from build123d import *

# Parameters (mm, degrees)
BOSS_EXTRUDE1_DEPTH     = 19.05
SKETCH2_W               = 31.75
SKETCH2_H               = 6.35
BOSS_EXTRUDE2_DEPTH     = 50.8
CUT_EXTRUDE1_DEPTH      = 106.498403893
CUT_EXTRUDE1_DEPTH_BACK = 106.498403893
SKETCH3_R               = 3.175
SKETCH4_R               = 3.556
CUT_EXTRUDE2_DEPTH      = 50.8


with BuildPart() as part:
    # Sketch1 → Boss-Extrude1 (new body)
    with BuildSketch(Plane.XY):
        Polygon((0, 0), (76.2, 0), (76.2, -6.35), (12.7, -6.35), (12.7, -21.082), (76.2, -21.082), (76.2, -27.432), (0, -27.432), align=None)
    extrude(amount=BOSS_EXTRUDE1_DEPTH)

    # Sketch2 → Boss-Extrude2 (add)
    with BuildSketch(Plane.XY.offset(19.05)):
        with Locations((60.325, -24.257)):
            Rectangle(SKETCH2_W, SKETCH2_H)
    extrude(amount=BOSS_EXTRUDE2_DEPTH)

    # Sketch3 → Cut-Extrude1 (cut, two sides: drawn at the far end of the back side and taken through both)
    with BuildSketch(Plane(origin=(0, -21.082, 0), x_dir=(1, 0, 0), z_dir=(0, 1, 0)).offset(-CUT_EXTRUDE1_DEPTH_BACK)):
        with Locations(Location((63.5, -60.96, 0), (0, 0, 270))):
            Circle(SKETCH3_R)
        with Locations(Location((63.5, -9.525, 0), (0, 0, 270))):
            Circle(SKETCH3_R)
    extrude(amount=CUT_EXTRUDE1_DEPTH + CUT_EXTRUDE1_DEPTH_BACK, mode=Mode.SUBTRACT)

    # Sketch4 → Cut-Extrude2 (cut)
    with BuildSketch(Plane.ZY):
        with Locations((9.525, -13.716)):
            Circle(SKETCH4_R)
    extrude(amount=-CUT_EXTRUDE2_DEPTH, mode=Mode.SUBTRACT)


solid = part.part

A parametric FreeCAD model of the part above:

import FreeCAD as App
import Part
import Sketcher

V = App.Vector
Q = App.Units.Quantity

doc = App.newDocument("Part")
body = doc.addObject("PartDesign::Body", "Body")

sketch1 = body.newObject("Sketcher::SketchObject", "Sketch")
sketch1.AttachmentSupport = (doc.getObject("XY_Plane"), [""])
sketch1.MapMode = "FlatFace"
sketch1.addGeometry([
    Part.LineSegment(V(76.2, 0, 0), V(0, 0, 0)),
    Part.LineSegment(V(0, 0, 0), V(0, -27.432, 0)),
    Part.LineSegment(V(0, -27.432, 0), V(76.2, -27.432, 0)),
    Part.LineSegment(V(76.2, -27.432, 0), V(76.2, -21.082, 0)),
    Part.LineSegment(V(76.2, -21.082, 0), V(12.7, -21.082, 0)),
    Part.LineSegment(V(12.7, -21.082, 0), V(12.7, -6.35, 0)),
    Part.LineSegment(V(12.7, -6.35, 0), V(76.2, -6.35, 0)),
    Part.LineSegment(V(76.2, -6.35, 0), V(76.2, 0, 0)),
], False)
sketch1.addConstraint([
    Sketcher.Constraint("Coincident", 0, 2, 1, 1),
    Sketcher.Constraint("Coincident", 1, 2, 2, 1),
    Sketcher.Constraint("Coincident", 2, 2, 3, 1),
    Sketcher.Constraint("Coincident", 3, 2, 4, 1),
    Sketcher.Constraint("Coincident", 4, 2, 5, 1),
    Sketcher.Constraint("Coincident", 5, 2, 6, 1),
    Sketcher.Constraint("Coincident", 6, 2, 7, 1),
    Sketcher.Constraint("Coincident", 7, 2, 0, 1),
    Sketcher.Constraint("Horizontal", 0),
    Sketcher.Constraint("Vertical", 1),
    Sketcher.Constraint("Horizontal", 2),
    Sketcher.Constraint("Vertical", 3),
    Sketcher.Constraint("Horizontal", 4),
    Sketcher.Constraint("Vertical", 5),
    Sketcher.Constraint("Horizontal", 6),
    Sketcher.Constraint("Vertical", 7),
    Sketcher.Constraint("Coincident", 0, 2, -1, 1),
    Sketcher.Constraint("Vertical", 3, 2, 6, 2),
    Sketcher.Constraint("Equal", 3, 7),
    Sketcher.Constraint("DistanceX", 0, 2, 0, 1, Q("3 in")),
    Sketcher.Constraint("DistanceX", 4, 2, 4, 1, Q("2.5 in")),
    Sketcher.Constraint("DistanceY", 1, 2, 1, 1, Q("1.08 in")),
    Sketcher.Constraint("DistanceY", 3, 1, 3, 2, Q("0.25 in")),
])
pad1 = body.newObject("PartDesign::Pad", "Pad")
pad1.Profile = sketch1
pad1.Length = Q("0.75 in")

sketch2 = body.newObject("Sketcher::SketchObject", "Sketch001")
sketch2.AttachmentSupport = (doc.getObject("XY_Plane"), [""])
sketch2.MapMode = "FlatFace"
sketch2.AttachmentOffset = App.Placement(V(0, 0, 0.75 * 25.4), App.Rotation())
sketch2.addGeometry([
    Part.LineSegment(V(44.45, -21.082, 0), V(44.45, -27.432, 0)),
    Part.LineSegment(V(44.45, -27.432, 0), V(76.2, -27.432, 0)),
    Part.LineSegment(V(76.2, -27.432, 0), V(76.2, -21.082, 0)),
    Part.LineSegment(V(76.2, -21.082, 0), V(44.45, -21.082, 0)),
], False)
sketch2.addConstraint([
    Sketcher.Constraint("Coincident", 0, 2, 1, 1),
    Sketcher.Constraint("Coincident", 1, 2, 2, 1),
    Sketcher.Constraint("Coincident", 2, 2, 3, 1),
    Sketcher.Constraint("Coincident", 3, 2, 0, 1),
    Sketcher.Constraint("Vertical", 0),
    Sketcher.Constraint("Horizontal", 1),
    Sketcher.Constraint("Vertical", 2),
    Sketcher.Constraint("Horizontal", 3),
    Sketcher.Constraint("DistanceX", -1, 1, 1, 2, Q("3 in")),
    Sketcher.Constraint("DistanceX", 1, 1, 1, 2, Q("1.25 in")),
    Sketcher.Constraint("DistanceY", 0, 2, 0, 1, Q("0.25 in")),
    Sketcher.Constraint("DistanceY", 0, 2, -1, 1, Q("1.08 in")),
])
pad2 = body.newObject("PartDesign::Pad", "Pad001")
pad2.Profile = sketch2
pad2.Length = Q("2 in")

sketch3 = body.newObject("Sketcher::SketchObject", "Sketch002")
sketch3.AttachmentSupport = (doc.getObject("XZ_Plane"), [""])
sketch3.MapMode = "FlatFace"
sketch3.AttachmentOffset = App.Placement(V(0, 0, 0.83 * 25.4), App.Rotation())
sketch3.addGeometry([
    Part.Circle(V(63.5, 60.96, 0), V(0, 0, 1), 3.175),
    Part.Circle(V(63.5, 9.525, 0), V(0, 0, 1), 3.175),
], False)
sketch3.addConstraint([
    Sketcher.Constraint("Equal", 0, 1),
    Sketcher.Constraint("Vertical", 0, 3, 1, 3),
    Sketcher.Constraint("Diameter", 0, Q("0.25 in")),
    Sketcher.Constraint("DistanceX", -1, 1, 0, 3, Q("2.5 in")),
    Sketcher.Constraint("DistanceY", -1, 1, 0, 3, Q("2.4 in")),
    Sketcher.Constraint("DistanceY", -1, 1, 1, 3, Q("0.375 in")),
])
pocket1 = body.newObject("PartDesign::Pocket", "Pocket")
pocket1.Profile = sketch3
pocket1.Type = "ThroughAll"
pocket1.Midplane = True

sketch4 = body.newObject("Sketcher::SketchObject", "Sketch003")
sketch4.AttachmentSupport = (doc.getObject("YZ_Plane"), [""])
sketch4.MapMode = "FlatFace"
sketch4.addGeometry(Part.Circle(V(-13.716, 9.525, 0), V(0, 0, 1), 3.556), False)
sketch4.addConstraint([
    Sketcher.Constraint("Diameter", 0, Q("0.28 in")),
    Sketcher.Constraint("DistanceX", 0, 3, -1, 1, Q("0.54 in")),
    Sketcher.Constraint("DistanceY", -1, 1, 0, 3, Q("0.375 in")),
])
pocket2 = body.newObject("PartDesign::Pocket", "Pocket001")
pocket2.Profile = sketch4
pocket2.Length = Q("2 in")
pocket2.Reversed = True

doc.recompute()
